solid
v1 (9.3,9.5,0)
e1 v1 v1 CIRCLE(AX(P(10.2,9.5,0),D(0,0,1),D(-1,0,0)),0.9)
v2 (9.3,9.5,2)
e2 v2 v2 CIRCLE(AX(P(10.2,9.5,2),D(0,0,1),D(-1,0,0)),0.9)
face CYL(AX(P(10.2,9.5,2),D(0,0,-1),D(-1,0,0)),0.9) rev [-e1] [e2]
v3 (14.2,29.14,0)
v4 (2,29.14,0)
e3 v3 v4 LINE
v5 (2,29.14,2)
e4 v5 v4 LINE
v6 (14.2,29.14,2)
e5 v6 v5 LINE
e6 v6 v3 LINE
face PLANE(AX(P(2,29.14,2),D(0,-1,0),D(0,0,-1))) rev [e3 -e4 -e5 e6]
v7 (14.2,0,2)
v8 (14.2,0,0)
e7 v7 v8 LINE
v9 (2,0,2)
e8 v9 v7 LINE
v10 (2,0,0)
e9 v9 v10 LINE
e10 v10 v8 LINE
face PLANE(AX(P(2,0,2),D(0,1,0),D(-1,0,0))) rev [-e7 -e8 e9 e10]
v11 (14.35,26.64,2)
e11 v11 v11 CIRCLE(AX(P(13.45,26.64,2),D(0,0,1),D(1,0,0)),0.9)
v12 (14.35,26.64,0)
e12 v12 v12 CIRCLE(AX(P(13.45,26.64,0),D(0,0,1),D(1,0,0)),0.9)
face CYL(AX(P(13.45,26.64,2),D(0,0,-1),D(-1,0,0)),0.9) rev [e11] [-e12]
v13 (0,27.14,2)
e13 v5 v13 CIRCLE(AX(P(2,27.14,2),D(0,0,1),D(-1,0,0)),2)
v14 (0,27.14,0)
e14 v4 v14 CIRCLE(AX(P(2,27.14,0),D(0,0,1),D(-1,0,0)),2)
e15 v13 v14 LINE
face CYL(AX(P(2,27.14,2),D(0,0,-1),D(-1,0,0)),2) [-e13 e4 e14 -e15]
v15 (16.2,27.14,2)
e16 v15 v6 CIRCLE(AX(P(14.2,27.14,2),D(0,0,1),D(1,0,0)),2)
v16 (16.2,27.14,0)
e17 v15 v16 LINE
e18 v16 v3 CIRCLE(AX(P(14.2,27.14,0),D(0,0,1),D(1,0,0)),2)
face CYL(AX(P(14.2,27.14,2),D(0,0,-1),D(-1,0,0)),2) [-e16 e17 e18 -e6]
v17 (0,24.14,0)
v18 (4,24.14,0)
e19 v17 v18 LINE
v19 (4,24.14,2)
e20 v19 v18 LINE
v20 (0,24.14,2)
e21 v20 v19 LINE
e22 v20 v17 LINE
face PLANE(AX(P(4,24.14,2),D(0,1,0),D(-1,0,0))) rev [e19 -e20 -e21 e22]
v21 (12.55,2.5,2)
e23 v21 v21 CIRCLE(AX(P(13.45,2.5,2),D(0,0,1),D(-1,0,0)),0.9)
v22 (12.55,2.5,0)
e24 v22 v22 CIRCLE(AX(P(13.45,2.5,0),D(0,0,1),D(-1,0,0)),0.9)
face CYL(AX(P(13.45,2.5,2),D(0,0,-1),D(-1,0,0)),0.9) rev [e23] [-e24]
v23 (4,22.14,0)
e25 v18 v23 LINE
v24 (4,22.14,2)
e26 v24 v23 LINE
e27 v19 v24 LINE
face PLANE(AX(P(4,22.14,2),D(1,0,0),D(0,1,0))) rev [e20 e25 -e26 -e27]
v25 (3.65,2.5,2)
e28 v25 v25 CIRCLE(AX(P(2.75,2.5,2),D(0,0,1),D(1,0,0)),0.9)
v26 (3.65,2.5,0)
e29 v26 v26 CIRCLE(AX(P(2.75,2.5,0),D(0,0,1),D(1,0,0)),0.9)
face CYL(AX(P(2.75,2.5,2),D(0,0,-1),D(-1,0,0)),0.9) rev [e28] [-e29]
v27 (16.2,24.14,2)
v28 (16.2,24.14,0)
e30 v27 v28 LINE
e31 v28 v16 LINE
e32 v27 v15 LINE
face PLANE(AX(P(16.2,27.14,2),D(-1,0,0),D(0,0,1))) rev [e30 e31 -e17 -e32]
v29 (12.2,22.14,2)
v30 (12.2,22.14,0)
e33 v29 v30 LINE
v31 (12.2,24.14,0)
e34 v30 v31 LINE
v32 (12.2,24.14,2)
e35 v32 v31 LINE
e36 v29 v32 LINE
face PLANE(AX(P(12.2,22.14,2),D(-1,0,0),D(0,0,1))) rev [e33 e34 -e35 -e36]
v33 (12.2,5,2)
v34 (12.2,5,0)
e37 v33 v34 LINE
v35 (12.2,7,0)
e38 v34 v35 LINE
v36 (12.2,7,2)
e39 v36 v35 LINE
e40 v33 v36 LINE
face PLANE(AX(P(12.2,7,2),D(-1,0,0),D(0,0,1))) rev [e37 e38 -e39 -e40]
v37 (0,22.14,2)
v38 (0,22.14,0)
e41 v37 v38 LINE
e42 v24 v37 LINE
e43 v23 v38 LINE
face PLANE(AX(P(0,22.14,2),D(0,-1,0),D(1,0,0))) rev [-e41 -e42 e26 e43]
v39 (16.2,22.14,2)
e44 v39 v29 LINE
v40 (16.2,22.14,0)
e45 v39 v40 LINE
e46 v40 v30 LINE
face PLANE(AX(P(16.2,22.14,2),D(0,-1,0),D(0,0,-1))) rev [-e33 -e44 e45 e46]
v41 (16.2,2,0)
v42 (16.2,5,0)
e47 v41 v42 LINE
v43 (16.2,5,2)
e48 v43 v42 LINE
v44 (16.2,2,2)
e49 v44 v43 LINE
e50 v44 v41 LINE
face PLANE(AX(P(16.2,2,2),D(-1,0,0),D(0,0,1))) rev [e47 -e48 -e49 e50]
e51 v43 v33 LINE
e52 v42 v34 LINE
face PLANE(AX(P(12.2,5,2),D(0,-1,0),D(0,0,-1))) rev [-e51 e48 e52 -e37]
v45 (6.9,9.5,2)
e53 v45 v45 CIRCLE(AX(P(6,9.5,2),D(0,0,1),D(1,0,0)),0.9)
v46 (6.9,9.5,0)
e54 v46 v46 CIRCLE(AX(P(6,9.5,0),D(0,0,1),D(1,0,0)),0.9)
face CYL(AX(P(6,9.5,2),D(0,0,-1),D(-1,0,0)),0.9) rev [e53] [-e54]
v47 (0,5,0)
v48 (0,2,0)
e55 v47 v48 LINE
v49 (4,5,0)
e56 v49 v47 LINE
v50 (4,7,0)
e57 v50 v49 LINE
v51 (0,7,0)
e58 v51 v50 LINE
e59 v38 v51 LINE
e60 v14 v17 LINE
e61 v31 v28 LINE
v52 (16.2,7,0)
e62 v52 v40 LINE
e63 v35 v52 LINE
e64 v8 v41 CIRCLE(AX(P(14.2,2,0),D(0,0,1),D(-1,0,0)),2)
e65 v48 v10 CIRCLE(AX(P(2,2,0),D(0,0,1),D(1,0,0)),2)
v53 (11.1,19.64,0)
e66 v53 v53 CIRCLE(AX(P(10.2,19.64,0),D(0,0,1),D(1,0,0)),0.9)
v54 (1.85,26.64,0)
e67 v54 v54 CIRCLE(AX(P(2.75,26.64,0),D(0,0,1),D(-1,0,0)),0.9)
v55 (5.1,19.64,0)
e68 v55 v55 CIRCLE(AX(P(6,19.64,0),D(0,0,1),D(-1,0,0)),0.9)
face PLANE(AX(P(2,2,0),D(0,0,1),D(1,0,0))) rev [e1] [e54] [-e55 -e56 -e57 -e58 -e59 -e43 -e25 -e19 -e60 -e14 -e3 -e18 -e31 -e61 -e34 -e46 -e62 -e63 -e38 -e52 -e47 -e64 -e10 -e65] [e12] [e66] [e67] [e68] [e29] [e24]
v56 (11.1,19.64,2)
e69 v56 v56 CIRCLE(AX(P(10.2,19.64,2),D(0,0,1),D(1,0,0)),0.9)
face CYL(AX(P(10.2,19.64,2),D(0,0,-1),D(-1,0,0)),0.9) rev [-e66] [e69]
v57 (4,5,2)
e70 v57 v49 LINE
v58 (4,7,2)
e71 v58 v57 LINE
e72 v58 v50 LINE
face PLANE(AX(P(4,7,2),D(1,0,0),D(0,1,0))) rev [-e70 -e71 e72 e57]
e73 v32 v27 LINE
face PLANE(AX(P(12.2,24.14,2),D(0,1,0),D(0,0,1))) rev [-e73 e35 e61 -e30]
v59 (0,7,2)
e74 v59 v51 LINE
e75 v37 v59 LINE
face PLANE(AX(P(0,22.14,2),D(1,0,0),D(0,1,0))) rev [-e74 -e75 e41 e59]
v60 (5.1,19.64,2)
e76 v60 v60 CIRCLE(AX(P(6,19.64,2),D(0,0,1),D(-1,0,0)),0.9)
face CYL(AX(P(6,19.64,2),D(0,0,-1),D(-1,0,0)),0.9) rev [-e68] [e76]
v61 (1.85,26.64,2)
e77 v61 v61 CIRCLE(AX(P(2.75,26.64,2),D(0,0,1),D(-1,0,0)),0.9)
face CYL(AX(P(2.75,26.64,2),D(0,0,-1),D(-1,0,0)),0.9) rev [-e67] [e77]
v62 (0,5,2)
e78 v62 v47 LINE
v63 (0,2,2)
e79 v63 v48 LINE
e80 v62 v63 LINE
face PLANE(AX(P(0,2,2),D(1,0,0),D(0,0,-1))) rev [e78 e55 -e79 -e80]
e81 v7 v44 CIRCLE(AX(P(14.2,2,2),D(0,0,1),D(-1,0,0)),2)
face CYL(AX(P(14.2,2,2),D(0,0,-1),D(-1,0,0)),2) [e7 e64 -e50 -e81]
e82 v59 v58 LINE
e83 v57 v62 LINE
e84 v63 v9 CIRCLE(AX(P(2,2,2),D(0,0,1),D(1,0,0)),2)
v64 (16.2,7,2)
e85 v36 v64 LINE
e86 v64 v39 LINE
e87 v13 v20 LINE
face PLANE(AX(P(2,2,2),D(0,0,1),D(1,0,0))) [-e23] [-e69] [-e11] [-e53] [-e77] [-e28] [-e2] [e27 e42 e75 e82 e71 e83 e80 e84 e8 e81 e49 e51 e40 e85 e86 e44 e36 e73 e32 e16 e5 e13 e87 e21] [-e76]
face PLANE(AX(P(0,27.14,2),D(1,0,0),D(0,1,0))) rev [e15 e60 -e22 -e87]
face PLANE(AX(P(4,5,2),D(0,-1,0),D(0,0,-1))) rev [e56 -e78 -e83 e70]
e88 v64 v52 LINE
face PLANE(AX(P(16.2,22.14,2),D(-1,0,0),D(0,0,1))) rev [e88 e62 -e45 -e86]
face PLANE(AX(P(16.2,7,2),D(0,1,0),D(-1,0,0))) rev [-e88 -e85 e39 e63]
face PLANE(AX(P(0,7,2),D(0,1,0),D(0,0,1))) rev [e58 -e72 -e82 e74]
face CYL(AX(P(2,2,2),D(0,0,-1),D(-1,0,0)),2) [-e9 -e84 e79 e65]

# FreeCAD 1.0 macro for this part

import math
import FreeCAD as App
import Part
import Sketcher
Q = App.Units.Quantity

doc = App.newDocument("Part")
params = doc.addObject("Spreadsheet::Sheet", "Params")
for row, (alias, value) in enumerate([
    ("sketch1_radius", "2 mm"),
    ("sketch1_diameter", "1.8 mm"),
    ("sketch1_width", "4 mm"),
    ("sketch1_height", "2 mm"),
    ("sketch1_height2", "3 mm"),
    ("pad1_length", "2 mm"),
], start=1):
    params.set(f"A{row}", alias)
    params.set(f"B{row}", "=" + value)
    params.setAlias(f"B{row}", alias)

body = doc.addObject("PartDesign::Body", "Body")

# Sketch on XY plane
sketch1 = body.newObject("Sketcher::SketchObject", "Sketch")
sketch1.AttachmentSupport = (doc.getObject("XY_Plane"), [""])
sketch1.MapMode = "FlatFace"
sketch1.addGeometry([
    Part.LineSegment(App.Vector(0, 22.14, 0), App.Vector(0, 7, 0)),  # 0
    Part.LineSegment(App.Vector(0, 7, 0), App.Vector(4, 7, 0)),  # 1
    Part.LineSegment(App.Vector(4, 7, 0), App.Vector(4, 5, 0)),  # 2
    Part.LineSegment(App.Vector(4, 5, 0), App.Vector(0, 5, 0)),  # 3
    Part.LineSegment(App.Vector(0, 5, 0), App.Vector(0, 2, 0)),  # 4
    Part.ArcOfCircle(Part.Circle(App.Vector(2, 2, 0), App.Vector(0, 0, 1), 2), math.radians(-180), math.radians(-90)),  # 5
    Part.LineSegment(App.Vector(2, 0, 0), App.Vector(14.2, 0, 0)),  # 6
    Part.ArcOfCircle(Part.Circle(App.Vector(14.2, 2, 0), App.Vector(0, 0, 1), 2), math.radians(-90), math.radians(0)),  # 7
    Part.LineSegment(App.Vector(16.2, 2, 0), App.Vector(16.2, 5, 0)),  # 8
    Part.LineSegment(App.Vector(16.2, 5, 0), App.Vector(12.2, 5, 0)),  # 9
    Part.LineSegment(App.Vector(12.2, 5, 0), App.Vector(12.2, 7, 0)),  # 10
    Part.LineSegment(App.Vector(12.2, 7, 0), App.Vector(16.2, 7, 0)),  # 11
    Part.LineSegment(App.Vector(16.2, 7, 0), App.Vector(16.2, 22.14, 0)),  # 12
    Part.LineSegment(App.Vector(16.2, 22.14, 0), App.Vector(12.2, 22.14, 0)),  # 13
    Part.LineSegment(App.Vector(12.2, 22.14, 0), App.Vector(12.2, 24.14, 0)),  # 14
    Part.LineSegment(App.Vector(12.2, 24.14, 0), App.Vector(16.2, 24.14, 0)),  # 15
    Part.LineSegment(App.Vector(16.2, 24.14, 0), App.Vector(16.2, 27.14, 0)),  # 16
    Part.ArcOfCircle(Part.Circle(App.Vector(14.2, 27.14, 0), App.Vector(0, 0, 1), 2), math.radians(0), math.radians(90)),  # 17
    Part.LineSegment(App.Vector(14.2, 29.14, 0), App.Vector(2, 29.14, 0)),  # 18
    Part.ArcOfCircle(Part.Circle(App.Vector(2, 27.14, 0), App.Vector(0, 0, 1), 2), math.radians(90), math.radians(180)),  # 19
    Part.LineSegment(App.Vector(0, 27.14, 0), App.Vector(0, 24.14, 0)),  # 20
    Part.LineSegment(App.Vector(0, 24.14, 0), App.Vector(4, 24.14, 0)),  # 21
    Part.LineSegment(App.Vector(4, 24.14, 0), App.Vector(4, 22.14, 0)),  # 22
    Part.LineSegment(App.Vector(4, 22.14, 0), App.Vector(0, 22.14, 0)),  # 23
    Part.Circle(App.Vector(2.75, 2.5, 0), App.Vector(0, 0, 1), 0.9),  # 24
    Part.Circle(App.Vector(6, 9.5, 0), App.Vector(0, 0, 1), 0.9),  # 25
    Part.Circle(App.Vector(13.45, 2.5, 0), App.Vector(0, 0, 1), 0.9),  # 26
    Part.Circle(App.Vector(10.2, 9.5, 0), App.Vector(0, 0, 1), 0.9),  # 27
    Part.Circle(App.Vector(6, 19.64, 0), App.Vector(0, 0, 1), 0.9),  # 28
    Part.Circle(App.Vector(2.75, 26.64, 0), App.Vector(0, 0, 1), 0.9),  # 29
    Part.Circle(App.Vector(10.2, 19.64, 0), App.Vector(0, 0, 1), 0.9),  # 30
    Part.Circle(App.Vector(13.45, 26.64, 0), App.Vector(0, 0, 1), 0.9),  # 31
], False)
sketch1.addConstraint([
    Sketcher.Constraint("Coincident", 0, 2, 1, 1),
    Sketcher.Constraint("Coincident", 1, 2, 2, 1),
    Sketcher.Constraint("Coincident", 2, 2, 3, 1),
    Sketcher.Constraint("Coincident", 3, 2, 4, 1),
    Sketcher.Constraint("Tangent", 4, 2, 5, 1),
    Sketcher.Constraint("Tangent", 5, 2, 6, 1),
    Sketcher.Constraint("Tangent", 6, 2, 7, 1),
    Sketcher.Constraint("Tangent", 7, 2, 8, 1),
    Sketcher.Constraint("Coincident", 8, 2, 9, 1),
    Sketcher.Constraint("Coincident", 9, 2, 10, 1),
    Sketcher.Constraint("Coincident", 10, 2, 11, 1),
    Sketcher.Constraint("Coincident", 11, 2, 12, 1),
    Sketcher.Constraint("Coincident", 12, 2, 13, 1),
    Sketcher.Constraint("Coincident", 13, 2, 14, 1),
    Sketcher.Constraint("Coincident", 14, 2, 15, 1),
    Sketcher.Constraint("Coincident", 15, 2, 16, 1),
    Sketcher.Constraint("Tangent", 16, 2, 17, 1),
    Sketcher.Constraint("Tangent", 17, 2, 18, 1),
    Sketcher.Constraint("Tangent", 18, 2, 19, 1),
    Sketcher.Constraint("Tangent", 19, 2, 20, 1),
    Sketcher.Constraint("Coincident", 20, 2, 21, 1),
    Sketcher.Constraint("Coincident", 21, 2, 22, 1),
    Sketcher.Constraint("Coincident", 22, 2, 23, 1),
    Sketcher.Constraint("Coincident", 23, 2, 0, 1),
    Sketcher.Constraint("Vertical", 0),
    Sketcher.Constraint("Horizontal", 1),
    Sketcher.Constraint("Vertical", 2),
    Sketcher.Constraint("Horizontal", 3),
    Sketcher.Constraint("Vertical", 4),
    Sketcher.Constraint("Horizontal", 6),
    Sketcher.Constraint("Vertical", 8),
    Sketcher.Constraint("Horizontal", 9),
    Sketcher.Constraint("Vertical", 10),
    Sketcher.Constraint("Horizontal", 11),
    Sketcher.Constraint("Vertical", 12),
    Sketcher.Constraint("Horizontal", 13),
    Sketcher.Constraint("Vertical", 14),
    Sketcher.Constraint("Horizontal", 15),
    Sketcher.Constraint("Vertical", 16),
    Sketcher.Constraint("Horizontal", 18),
    Sketcher.Constraint("Vertical", 20),
    Sketcher.Constraint("Horizontal", 21),
    Sketcher.Constraint("Vertical", 22),
    Sketcher.Constraint("Horizontal", 23),
    Sketcher.Constraint("Equal", 5, 7),
    Sketcher.Constraint("Equal", 7, 17),
    Sketcher.Constraint("Equal", 17, 19),
    Sketcher.Constraint("Equal", 24, 25),
    Sketcher.Constraint("Equal", 25, 26),
    Sketcher.Constraint("Equal", 26, 27),
    Sketcher.Constraint("Equal", 27, 28),
    Sketcher.Constraint("Equal", 28, 29),
    Sketcher.Constraint("Equal", 29, 30),
    Sketcher.Constraint("Equal", 30, 31),
    Sketcher.Constraint("PointOnObject", 0, 2, -2),
    Sketcher.Constraint("PointOnObject", 3, 2, -2),
    Sketcher.Constraint("PointOnObject", 5, 2, -1),
    Sketcher.Constraint("PointOnObject", 19, 2, -2),
    Sketcher.Constraint("Horizontal", 24, 3, 26, 3),
    Sketcher.Constraint("Horizontal", 25, 3, 27, 3),
    Sketcher.Constraint("Horizontal", 28, 3, 30, 3),
    Sketcher.Constraint("Horizontal", 29, 3, 31, 3),
    Sketcher.Constraint("Horizontal", 3, 2, 8, 2),
    Sketcher.Constraint("Horizontal", 1, 2, 10, 2),
    Sketcher.Constraint("Horizontal", 15, 2, 20, 2),
    Sketcher.Constraint("Horizontal", 13, 2, 22, 2),
    Sketcher.Constraint("Vertical", 7, 3, 17, 3),
    Sketcher.Constraint("Vertical", 25, 3, 28, 3),
    Sketcher.Constraint("Vertical", 24, 3, 29, 3),
    Sketcher.Constraint("Vertical", 27, 3, 30, 3),
    Sketcher.Constraint("Vertical", 26, 3, 31, 3),
    Sketcher.Constraint("Vertical", 8, 2, 11, 2),
    Sketcher.Constraint("Vertical", 10, 2, 13, 2),
    Sketcher.Constraint("Vertical", 2, 2, 21, 2),
    Sketcher.Constraint("Equal", 3, 9),
    Sketcher.Constraint("Equal", 10, 14),
    Sketcher.Constraint("Equal", 8, 16),
    Sketcher.Constraint("Radius", 5, Q("2 mm")),
    Sketcher.Constraint("Diameter", 24, Q("1.8 mm")),
    Sketcher.Constraint("DistanceX", 1, 1, 1, 2, Q("4 mm")),
    Sketcher.Constraint("DistanceY", 2, 2, 2, 1, Q("2 mm")),
    Sketcher.Constraint("DistanceY", 4, 2, 4, 1, Q("3 mm")),
    Sketcher.Constraint("DistanceX", 6, 1, 6, 2, Q("12.2 mm")),
    Sketcher.Constraint("DistanceX", -1, 1, 25, 3, Q("6 mm")),
    Sketcher.Constraint("DistanceY", 24, 3, 25, 3, Q("7 mm")),
    Sketcher.Constraint("DistanceX", 27, 3, 7, 3, Q("4 mm")),
    Sketcher.Constraint("DistanceY", 28, 3, 29, 3, Q("7 mm")),
    Sketcher.Constraint("DistanceY", 0, 2, 0, 1, Q("15.14 mm")),
    Sketcher.Constraint("DistanceY", -1, 1, 24, 3, Q("2.5 mm")),
    Sketcher.Constraint("DistanceX", 24, 3, 26, 3, Q("10.7 mm")),
    Sketcher.Constraint("DistanceY", 28, 3, 19, 3, Q("7.5 mm")),
    Sketcher.Constraint("DistanceX", -1, 1, 24, 3, Q("2.75 mm")),
])
sketch1.setExpression("Constraints[77]", "Params.sketch1_radius")
sketch1.setExpression("Constraints[78]", "Params.sketch1_diameter")
sketch1.setExpression("Constraints[79]", "Params.sketch1_width")
sketch1.setExpression("Constraints[80]", "Params.sketch1_height")
sketch1.setExpression("Constraints[81]", "Params.sketch1_height2")
pad1 = body.newObject("PartDesign::Pad", "Pad")
pad1.Profile = sketch1
pad1.setExpression("Length", "Params.pad1_length")

doc.recompute()
